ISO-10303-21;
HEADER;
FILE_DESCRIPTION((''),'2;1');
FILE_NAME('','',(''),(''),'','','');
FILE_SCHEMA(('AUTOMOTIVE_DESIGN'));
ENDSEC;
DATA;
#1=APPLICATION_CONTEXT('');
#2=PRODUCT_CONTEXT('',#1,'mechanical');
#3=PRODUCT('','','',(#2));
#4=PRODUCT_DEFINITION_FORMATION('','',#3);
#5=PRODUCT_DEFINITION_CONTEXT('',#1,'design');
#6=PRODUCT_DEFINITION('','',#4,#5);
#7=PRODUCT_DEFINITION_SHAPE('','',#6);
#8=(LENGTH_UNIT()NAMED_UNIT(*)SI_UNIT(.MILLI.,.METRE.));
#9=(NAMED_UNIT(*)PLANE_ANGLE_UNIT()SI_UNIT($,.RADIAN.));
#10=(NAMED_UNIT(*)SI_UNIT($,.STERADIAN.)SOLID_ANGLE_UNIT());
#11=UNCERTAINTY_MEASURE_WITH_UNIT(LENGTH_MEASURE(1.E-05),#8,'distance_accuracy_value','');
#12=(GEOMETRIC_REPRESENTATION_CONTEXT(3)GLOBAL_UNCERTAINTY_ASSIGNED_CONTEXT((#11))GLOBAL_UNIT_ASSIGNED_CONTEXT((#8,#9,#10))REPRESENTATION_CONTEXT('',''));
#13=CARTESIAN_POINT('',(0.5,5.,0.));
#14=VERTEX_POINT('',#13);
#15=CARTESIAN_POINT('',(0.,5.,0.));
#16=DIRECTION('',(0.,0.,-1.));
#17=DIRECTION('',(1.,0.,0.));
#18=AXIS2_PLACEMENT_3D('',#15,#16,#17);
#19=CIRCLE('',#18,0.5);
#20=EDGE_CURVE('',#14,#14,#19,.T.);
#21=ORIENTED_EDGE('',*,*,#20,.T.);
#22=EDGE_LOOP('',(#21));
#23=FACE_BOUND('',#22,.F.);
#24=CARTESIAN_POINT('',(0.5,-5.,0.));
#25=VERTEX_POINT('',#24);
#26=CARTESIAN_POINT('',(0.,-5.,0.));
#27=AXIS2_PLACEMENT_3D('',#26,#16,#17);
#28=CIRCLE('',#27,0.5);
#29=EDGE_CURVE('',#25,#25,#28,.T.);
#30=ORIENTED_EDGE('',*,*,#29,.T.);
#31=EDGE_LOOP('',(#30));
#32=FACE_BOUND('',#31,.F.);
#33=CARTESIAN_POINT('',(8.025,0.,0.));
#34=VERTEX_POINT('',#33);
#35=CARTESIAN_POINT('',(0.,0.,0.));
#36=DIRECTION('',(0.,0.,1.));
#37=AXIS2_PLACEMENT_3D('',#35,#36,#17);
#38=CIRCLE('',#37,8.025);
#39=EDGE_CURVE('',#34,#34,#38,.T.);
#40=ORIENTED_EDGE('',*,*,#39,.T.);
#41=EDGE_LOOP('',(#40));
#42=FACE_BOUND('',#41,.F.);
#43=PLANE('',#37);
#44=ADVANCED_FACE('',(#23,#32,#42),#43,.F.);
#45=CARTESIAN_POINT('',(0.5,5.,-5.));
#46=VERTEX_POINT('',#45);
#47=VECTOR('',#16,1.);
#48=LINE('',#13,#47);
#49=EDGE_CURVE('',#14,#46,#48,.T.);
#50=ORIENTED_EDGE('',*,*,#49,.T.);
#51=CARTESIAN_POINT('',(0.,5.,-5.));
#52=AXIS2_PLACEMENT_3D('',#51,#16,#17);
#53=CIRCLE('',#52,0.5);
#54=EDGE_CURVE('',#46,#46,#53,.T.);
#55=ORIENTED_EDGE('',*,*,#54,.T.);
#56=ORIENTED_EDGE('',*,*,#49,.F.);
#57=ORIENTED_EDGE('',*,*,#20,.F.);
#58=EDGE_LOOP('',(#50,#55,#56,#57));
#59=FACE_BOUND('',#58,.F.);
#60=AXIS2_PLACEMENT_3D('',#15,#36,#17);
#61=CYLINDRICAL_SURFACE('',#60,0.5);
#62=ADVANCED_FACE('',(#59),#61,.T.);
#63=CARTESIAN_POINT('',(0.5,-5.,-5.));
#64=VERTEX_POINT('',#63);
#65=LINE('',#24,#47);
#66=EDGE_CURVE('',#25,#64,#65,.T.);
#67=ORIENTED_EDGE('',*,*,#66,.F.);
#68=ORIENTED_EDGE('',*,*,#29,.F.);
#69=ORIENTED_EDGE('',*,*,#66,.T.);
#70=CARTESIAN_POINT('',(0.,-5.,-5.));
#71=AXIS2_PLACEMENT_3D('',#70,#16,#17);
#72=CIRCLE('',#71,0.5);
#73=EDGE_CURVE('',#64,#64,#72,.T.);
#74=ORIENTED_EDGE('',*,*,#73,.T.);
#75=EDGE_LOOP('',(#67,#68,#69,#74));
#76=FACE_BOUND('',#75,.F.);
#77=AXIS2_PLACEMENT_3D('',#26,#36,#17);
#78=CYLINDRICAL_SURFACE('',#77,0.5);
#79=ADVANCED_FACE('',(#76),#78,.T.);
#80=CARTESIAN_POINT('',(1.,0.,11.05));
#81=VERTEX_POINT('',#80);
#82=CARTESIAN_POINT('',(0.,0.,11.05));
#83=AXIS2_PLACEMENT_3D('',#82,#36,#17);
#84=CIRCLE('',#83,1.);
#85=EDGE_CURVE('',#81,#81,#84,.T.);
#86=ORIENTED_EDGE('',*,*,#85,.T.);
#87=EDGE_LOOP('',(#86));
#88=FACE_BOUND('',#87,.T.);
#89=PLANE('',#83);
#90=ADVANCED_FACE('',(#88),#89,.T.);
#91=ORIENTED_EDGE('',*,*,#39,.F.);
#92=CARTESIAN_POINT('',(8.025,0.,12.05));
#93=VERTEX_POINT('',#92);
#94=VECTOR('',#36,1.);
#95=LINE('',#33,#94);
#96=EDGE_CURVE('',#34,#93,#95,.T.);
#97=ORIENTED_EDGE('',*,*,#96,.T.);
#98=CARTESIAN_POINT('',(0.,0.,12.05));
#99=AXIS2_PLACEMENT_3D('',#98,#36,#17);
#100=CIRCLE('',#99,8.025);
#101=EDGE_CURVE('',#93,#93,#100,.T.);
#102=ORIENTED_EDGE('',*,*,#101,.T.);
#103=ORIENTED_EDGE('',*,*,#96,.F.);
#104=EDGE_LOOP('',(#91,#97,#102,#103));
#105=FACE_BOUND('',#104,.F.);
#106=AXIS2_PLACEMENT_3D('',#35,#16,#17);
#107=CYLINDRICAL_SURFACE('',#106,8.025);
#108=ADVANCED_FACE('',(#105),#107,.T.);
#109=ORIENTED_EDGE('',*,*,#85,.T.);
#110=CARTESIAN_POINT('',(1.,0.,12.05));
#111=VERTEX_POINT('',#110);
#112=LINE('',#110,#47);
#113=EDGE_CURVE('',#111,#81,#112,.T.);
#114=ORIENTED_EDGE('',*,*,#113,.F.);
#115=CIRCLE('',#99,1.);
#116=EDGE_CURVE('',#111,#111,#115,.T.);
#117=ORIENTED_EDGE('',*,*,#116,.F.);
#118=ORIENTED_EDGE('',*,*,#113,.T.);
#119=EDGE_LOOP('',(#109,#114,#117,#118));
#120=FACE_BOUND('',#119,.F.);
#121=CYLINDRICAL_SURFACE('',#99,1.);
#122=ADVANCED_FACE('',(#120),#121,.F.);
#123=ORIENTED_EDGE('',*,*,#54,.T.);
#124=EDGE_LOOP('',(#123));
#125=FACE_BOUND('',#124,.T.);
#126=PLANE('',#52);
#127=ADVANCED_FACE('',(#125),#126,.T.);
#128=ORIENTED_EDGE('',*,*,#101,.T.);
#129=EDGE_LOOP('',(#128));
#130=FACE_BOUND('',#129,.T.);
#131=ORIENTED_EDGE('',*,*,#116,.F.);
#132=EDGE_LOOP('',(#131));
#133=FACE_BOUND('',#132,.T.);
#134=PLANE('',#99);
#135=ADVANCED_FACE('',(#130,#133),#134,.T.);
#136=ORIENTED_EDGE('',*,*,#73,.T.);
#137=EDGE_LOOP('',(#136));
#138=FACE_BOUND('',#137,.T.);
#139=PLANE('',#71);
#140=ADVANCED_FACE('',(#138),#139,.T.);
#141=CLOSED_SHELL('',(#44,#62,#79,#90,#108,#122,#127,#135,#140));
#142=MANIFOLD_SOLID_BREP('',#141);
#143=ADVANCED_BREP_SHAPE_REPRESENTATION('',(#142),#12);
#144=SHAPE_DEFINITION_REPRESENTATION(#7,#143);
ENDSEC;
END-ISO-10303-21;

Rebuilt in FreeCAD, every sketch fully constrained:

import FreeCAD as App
import Part
import Sketcher
from FreeCAD import Vector
Q = App.Units.Quantity

doc = App.newDocument("Part")
body = doc.addObject("PartDesign::Body", "Body")

# Sketch on XY plane
sketch1 = body.newObject("Sketcher::SketchObject", "Sketch")
sketch1.AttachmentSupport = (doc.getObject("XY_Plane"), [""])
sketch1.MapMode = "FlatFace"
sketch1.addGeometry(Part.Circle(Vector(0, 0, 0), Vector(0, 0, 1), 8), False)
sketch1.addConstraint([
    Sketcher.Constraint("Coincident", 0, 3, -1, 1),
    Sketcher.Constraint("Diameter", 0, Q("16.05 mm")),
])
pad1 = body.newObject("PartDesign::Pad", "Pad")
pad1.Profile = sketch1
pad1.Length = 12.05

# Sketch on XY plane
sketch2 = body.newObject("Sketcher::SketchObject", "Sketch001")
sketch2.AttachmentSupport = (doc.getObject("XY_Plane"), [""])
sketch2.MapMode = "FlatFace"
sketch2.addGeometry([
    Part.Circle(Vector(0, -5, 0), Vector(0, 0, 1), 0.5),
    Part.Circle(Vector(0, 5, 0), Vector(0, 0, 1), 0.5),
], False)
sketch2.addConstraint([
    Sketcher.Constraint("Equal", 0, 1),
    Sketcher.Constraint("Symmetric", 0, 3, 1, 3, -1, 1),
    Sketcher.Constraint("PointOnObject", 0, 3, -2),
    Sketcher.Constraint("Diameter", 0, Q("1 mm")),
    Sketcher.Constraint("DistanceY", 0, 3, -1, 1, Q("5 mm")),
])
pad2 = body.newObject("PartDesign::Pad", "Pad001")
pad2.Profile = sketch2
pad2.Length = 5
pad2.Reversed = True

# Sketch on XY plane
sketch3 = body.newObject("Sketcher::SketchObject", "Sketch002")
sketch3.AttachmentSupport = (doc.getObject("XY_Plane"), [""])
sketch3.MapMode = "FlatFace"
sketch3.AttachmentOffset = App.Placement(Vector(0, 0, 12.05), App.Rotation())
sketch3.addGeometry(Part.Circle(Vector(0, 0, 0), Vector(0, 0, 1), 1), False)
sketch3.addConstraint([
    Sketcher.Constraint("Coincident", 0, 3, -1, 1),
    Sketcher.Constraint("Diameter", 0, Q("2 mm")),
])
pocket1 = body.newObject("PartDesign::Pocket", "Pocket")
pocket1.Profile = sketch3
pocket1.Length = 1

doc.recompute()
